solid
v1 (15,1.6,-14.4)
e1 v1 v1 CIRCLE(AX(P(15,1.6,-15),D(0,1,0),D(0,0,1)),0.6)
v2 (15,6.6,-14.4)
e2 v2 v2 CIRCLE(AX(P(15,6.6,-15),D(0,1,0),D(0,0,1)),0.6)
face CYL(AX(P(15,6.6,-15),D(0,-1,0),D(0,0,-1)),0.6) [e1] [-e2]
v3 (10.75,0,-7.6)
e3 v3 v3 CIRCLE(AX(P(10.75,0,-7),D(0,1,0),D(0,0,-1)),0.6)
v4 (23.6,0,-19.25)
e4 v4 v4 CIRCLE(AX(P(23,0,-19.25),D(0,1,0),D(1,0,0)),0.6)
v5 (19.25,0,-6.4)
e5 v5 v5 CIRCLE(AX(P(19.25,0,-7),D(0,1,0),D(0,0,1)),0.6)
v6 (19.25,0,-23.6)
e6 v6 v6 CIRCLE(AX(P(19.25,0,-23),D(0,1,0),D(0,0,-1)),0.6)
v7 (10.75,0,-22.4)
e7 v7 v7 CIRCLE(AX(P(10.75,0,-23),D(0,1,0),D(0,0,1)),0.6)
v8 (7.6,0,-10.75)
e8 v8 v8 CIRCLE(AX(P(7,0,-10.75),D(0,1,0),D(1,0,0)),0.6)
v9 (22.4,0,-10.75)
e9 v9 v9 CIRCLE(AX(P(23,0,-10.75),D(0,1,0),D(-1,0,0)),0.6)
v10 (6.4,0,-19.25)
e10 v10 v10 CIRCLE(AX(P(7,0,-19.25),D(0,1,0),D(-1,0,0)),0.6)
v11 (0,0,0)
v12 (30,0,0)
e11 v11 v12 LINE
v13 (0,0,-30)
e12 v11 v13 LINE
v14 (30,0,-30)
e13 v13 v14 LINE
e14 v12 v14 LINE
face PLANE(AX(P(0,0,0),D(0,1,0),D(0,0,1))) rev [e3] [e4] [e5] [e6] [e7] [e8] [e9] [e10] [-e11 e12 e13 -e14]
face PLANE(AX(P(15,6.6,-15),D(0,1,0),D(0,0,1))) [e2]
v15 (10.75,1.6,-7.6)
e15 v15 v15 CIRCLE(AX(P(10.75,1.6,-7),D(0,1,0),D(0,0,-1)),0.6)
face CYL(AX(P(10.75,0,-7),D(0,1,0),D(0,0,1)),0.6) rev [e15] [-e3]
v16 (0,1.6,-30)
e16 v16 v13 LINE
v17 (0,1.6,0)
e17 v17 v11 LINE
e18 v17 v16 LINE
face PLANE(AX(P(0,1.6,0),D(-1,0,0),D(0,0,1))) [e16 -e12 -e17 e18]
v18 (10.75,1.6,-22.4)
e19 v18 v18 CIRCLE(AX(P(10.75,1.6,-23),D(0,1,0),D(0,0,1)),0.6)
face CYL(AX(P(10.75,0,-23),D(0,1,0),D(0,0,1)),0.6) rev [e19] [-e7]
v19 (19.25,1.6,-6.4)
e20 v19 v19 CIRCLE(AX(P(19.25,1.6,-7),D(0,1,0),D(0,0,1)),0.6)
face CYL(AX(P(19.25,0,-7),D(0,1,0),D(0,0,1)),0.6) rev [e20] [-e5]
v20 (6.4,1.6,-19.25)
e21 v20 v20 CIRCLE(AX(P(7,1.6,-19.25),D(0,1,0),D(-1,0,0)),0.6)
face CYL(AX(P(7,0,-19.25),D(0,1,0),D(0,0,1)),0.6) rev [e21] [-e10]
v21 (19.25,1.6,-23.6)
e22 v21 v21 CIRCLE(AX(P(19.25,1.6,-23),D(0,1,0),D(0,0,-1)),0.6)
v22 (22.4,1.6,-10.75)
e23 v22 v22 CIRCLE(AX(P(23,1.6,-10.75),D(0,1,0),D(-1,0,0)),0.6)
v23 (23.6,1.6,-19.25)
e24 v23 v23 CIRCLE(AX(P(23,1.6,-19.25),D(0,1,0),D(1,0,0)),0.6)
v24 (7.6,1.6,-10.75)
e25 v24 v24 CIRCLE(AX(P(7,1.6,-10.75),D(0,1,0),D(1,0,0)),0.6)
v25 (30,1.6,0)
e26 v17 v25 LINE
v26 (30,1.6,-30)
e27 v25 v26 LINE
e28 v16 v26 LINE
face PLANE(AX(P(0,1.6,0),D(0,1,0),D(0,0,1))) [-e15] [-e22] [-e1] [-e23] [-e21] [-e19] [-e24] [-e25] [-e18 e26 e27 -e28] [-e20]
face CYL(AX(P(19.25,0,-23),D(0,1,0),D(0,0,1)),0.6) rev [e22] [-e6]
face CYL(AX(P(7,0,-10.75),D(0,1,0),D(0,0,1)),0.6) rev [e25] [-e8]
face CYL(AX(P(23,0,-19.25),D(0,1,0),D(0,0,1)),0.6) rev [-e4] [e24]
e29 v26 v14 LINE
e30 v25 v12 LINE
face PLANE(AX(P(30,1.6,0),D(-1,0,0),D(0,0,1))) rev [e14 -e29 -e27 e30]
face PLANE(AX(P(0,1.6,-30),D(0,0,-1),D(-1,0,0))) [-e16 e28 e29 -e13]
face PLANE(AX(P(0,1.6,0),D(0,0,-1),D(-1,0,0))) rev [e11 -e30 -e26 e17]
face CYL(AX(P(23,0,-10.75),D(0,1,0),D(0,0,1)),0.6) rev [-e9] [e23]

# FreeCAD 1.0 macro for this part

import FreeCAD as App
import Part
import Sketcher
from FreeCAD import Vector
Q = App.Units.Quantity


def add_polygon(sketch, points):
    """Adds a closed chain of lines whose ends are joined by coincident constraints."""
    first, n = sketch.GeometryCount, len(points)
    for a, b in zip(points, points[1:] + points[:1]):
        sketch.addGeometry(Part.LineSegment(App.Vector(*a, 0), App.Vector(*b, 0)), False)
    for i in range(n):
        sketch.addConstraint(Sketcher.Constraint("Coincident", first + i, 2, first + (i + 1) % n, 1))

doc = App.newDocument("Part")
body = doc.addObject("PartDesign::Body", "Body")

sketch1 = body.newObject("Sketcher::SketchObject", "Sketch")
sketch1.AttachmentSupport = (doc.getObject("XZ_Plane"), [""])
sketch1.MapMode = "FlatFace"
add_polygon(sketch1, [(0, -30), (0, 0), (30, 0), (30, -30)])
sketch1.addConstraint([
    Sketcher.Constraint("Vertical", 0),
    Sketcher.Constraint("Horizontal", 1),
    Sketcher.Constraint("Vertical", 2),
    Sketcher.Constraint("Horizontal", 3),
    Sketcher.Constraint("Coincident", 0, 2, -1, 1),
    Sketcher.Constraint("Equal", 3, 0),
    Sketcher.Constraint("DistanceX", 1, 1, 1, 2, Q("30 mm")),
])
pad1 = body.newObject("PartDesign::Pad", "Pad")
pad1.Profile = sketch1
pad1.Length = 1.6
pad1.Reversed = True

sketch2 = body.newObject("Sketcher::SketchObject", "Sketch001")
sketch2.AttachmentSupport = (doc.getObject("XZ_Plane"), [""])
sketch2.MapMode = "FlatFace"
sketch2.AttachmentOffset = App.Placement(Vector(0, 0, -1.6), App.Rotation())
sketch2.addGeometry([
    Part.Circle(Vector(19.2, -7, 0), Vector(0, 0, 1), 0.6),
    Part.Circle(Vector(10.8, -7, 0), Vector(0, 0, 1), 0.6),
    Part.Circle(Vector(19.2, -23, 0), Vector(0, 0, 1), 0.6),
    Part.Circle(Vector(10.8, -23, 0), Vector(0, 0, 1), 0.6),
], False)
sketch2.addConstraint([
    Sketcher.Constraint("Equal", 0, 1),
    Sketcher.Constraint("Equal", 1, 2),
    Sketcher.Constraint("Equal", 2, 3),
    Sketcher.Constraint("Horizontal", 0, 3, 1, 3),
    Sketcher.Constraint("Horizontal", 2, 3, 3, 3),
    Sketcher.Constraint("Vertical", 0, 3, 2, 3),
    Sketcher.Constraint("Vertical", 1, 3, 3, 3),
    Sketcher.Constraint("Diameter", 0, Q("1.2 mm")),
    Sketcher.Constraint("DistanceY", 0, 3, -1, 1, Q("7 mm")),
    Sketcher.Constraint("DistanceY", 2, 3, -1, 1, Q("23 mm")),
    Sketcher.Constraint("DistanceX", 1, 3, 0, 3, Q("8.5 mm")),
    Sketcher.Constraint("DistanceX", -1, 1, 0, 3, Q("19.25 mm")),
])
pocket1 = body.newObject("PartDesign::Pocket", "Pocket")
pocket1.Profile = sketch2
pocket1.Length = 1.6
pocket1.Reversed = True
doc.recompute()

datumline = body.newObject("PartDesign::Line", "DatumLine")
datumline.Placement = App.Placement(Vector(15, 0, -15), App.Rotation(Vector(0, 0, 1), Vector(0, 1, 0)))
polarpattern = body.newObject("PartDesign::PolarPattern", "PolarPattern")
polarpattern.Originals = [pocket1]
polarpattern.Axis = (datumline, [""])
polarpattern.Angle = 90
polarpattern.Occurrences = 2
body.Tip = polarpattern

sketch3 = body.newObject("Sketcher::SketchObject", "Sketch002")
sketch3.AttachmentSupport = (doc.getObject("XZ_Plane"), [""])
sketch3.MapMode = "FlatFace"
sketch3.AttachmentOffset = App.Placement(Vector(0, 0, -1.6), App.Rotation())
sketch3.addGeometry(Part.Circle(Vector(15, -15, 0), Vector(0, 0, 1), 0.6), False)
sketch3.addConstraint([
    Sketcher.Constraint("Diameter", 0, Q("1.2 mm")),
    Sketcher.Constraint("DistanceX", -1, 1, 0, 3, Q("15 mm")),
    Sketcher.Constraint("DistanceY", 0, 3, -1, 1, Q("15 mm")),
])
pad2 = body.newObject("PartDesign::Pad", "Pad001")
pad2.Profile = sketch3
pad2.Length = 5
pad2.Reversed = True

doc.recompute()
